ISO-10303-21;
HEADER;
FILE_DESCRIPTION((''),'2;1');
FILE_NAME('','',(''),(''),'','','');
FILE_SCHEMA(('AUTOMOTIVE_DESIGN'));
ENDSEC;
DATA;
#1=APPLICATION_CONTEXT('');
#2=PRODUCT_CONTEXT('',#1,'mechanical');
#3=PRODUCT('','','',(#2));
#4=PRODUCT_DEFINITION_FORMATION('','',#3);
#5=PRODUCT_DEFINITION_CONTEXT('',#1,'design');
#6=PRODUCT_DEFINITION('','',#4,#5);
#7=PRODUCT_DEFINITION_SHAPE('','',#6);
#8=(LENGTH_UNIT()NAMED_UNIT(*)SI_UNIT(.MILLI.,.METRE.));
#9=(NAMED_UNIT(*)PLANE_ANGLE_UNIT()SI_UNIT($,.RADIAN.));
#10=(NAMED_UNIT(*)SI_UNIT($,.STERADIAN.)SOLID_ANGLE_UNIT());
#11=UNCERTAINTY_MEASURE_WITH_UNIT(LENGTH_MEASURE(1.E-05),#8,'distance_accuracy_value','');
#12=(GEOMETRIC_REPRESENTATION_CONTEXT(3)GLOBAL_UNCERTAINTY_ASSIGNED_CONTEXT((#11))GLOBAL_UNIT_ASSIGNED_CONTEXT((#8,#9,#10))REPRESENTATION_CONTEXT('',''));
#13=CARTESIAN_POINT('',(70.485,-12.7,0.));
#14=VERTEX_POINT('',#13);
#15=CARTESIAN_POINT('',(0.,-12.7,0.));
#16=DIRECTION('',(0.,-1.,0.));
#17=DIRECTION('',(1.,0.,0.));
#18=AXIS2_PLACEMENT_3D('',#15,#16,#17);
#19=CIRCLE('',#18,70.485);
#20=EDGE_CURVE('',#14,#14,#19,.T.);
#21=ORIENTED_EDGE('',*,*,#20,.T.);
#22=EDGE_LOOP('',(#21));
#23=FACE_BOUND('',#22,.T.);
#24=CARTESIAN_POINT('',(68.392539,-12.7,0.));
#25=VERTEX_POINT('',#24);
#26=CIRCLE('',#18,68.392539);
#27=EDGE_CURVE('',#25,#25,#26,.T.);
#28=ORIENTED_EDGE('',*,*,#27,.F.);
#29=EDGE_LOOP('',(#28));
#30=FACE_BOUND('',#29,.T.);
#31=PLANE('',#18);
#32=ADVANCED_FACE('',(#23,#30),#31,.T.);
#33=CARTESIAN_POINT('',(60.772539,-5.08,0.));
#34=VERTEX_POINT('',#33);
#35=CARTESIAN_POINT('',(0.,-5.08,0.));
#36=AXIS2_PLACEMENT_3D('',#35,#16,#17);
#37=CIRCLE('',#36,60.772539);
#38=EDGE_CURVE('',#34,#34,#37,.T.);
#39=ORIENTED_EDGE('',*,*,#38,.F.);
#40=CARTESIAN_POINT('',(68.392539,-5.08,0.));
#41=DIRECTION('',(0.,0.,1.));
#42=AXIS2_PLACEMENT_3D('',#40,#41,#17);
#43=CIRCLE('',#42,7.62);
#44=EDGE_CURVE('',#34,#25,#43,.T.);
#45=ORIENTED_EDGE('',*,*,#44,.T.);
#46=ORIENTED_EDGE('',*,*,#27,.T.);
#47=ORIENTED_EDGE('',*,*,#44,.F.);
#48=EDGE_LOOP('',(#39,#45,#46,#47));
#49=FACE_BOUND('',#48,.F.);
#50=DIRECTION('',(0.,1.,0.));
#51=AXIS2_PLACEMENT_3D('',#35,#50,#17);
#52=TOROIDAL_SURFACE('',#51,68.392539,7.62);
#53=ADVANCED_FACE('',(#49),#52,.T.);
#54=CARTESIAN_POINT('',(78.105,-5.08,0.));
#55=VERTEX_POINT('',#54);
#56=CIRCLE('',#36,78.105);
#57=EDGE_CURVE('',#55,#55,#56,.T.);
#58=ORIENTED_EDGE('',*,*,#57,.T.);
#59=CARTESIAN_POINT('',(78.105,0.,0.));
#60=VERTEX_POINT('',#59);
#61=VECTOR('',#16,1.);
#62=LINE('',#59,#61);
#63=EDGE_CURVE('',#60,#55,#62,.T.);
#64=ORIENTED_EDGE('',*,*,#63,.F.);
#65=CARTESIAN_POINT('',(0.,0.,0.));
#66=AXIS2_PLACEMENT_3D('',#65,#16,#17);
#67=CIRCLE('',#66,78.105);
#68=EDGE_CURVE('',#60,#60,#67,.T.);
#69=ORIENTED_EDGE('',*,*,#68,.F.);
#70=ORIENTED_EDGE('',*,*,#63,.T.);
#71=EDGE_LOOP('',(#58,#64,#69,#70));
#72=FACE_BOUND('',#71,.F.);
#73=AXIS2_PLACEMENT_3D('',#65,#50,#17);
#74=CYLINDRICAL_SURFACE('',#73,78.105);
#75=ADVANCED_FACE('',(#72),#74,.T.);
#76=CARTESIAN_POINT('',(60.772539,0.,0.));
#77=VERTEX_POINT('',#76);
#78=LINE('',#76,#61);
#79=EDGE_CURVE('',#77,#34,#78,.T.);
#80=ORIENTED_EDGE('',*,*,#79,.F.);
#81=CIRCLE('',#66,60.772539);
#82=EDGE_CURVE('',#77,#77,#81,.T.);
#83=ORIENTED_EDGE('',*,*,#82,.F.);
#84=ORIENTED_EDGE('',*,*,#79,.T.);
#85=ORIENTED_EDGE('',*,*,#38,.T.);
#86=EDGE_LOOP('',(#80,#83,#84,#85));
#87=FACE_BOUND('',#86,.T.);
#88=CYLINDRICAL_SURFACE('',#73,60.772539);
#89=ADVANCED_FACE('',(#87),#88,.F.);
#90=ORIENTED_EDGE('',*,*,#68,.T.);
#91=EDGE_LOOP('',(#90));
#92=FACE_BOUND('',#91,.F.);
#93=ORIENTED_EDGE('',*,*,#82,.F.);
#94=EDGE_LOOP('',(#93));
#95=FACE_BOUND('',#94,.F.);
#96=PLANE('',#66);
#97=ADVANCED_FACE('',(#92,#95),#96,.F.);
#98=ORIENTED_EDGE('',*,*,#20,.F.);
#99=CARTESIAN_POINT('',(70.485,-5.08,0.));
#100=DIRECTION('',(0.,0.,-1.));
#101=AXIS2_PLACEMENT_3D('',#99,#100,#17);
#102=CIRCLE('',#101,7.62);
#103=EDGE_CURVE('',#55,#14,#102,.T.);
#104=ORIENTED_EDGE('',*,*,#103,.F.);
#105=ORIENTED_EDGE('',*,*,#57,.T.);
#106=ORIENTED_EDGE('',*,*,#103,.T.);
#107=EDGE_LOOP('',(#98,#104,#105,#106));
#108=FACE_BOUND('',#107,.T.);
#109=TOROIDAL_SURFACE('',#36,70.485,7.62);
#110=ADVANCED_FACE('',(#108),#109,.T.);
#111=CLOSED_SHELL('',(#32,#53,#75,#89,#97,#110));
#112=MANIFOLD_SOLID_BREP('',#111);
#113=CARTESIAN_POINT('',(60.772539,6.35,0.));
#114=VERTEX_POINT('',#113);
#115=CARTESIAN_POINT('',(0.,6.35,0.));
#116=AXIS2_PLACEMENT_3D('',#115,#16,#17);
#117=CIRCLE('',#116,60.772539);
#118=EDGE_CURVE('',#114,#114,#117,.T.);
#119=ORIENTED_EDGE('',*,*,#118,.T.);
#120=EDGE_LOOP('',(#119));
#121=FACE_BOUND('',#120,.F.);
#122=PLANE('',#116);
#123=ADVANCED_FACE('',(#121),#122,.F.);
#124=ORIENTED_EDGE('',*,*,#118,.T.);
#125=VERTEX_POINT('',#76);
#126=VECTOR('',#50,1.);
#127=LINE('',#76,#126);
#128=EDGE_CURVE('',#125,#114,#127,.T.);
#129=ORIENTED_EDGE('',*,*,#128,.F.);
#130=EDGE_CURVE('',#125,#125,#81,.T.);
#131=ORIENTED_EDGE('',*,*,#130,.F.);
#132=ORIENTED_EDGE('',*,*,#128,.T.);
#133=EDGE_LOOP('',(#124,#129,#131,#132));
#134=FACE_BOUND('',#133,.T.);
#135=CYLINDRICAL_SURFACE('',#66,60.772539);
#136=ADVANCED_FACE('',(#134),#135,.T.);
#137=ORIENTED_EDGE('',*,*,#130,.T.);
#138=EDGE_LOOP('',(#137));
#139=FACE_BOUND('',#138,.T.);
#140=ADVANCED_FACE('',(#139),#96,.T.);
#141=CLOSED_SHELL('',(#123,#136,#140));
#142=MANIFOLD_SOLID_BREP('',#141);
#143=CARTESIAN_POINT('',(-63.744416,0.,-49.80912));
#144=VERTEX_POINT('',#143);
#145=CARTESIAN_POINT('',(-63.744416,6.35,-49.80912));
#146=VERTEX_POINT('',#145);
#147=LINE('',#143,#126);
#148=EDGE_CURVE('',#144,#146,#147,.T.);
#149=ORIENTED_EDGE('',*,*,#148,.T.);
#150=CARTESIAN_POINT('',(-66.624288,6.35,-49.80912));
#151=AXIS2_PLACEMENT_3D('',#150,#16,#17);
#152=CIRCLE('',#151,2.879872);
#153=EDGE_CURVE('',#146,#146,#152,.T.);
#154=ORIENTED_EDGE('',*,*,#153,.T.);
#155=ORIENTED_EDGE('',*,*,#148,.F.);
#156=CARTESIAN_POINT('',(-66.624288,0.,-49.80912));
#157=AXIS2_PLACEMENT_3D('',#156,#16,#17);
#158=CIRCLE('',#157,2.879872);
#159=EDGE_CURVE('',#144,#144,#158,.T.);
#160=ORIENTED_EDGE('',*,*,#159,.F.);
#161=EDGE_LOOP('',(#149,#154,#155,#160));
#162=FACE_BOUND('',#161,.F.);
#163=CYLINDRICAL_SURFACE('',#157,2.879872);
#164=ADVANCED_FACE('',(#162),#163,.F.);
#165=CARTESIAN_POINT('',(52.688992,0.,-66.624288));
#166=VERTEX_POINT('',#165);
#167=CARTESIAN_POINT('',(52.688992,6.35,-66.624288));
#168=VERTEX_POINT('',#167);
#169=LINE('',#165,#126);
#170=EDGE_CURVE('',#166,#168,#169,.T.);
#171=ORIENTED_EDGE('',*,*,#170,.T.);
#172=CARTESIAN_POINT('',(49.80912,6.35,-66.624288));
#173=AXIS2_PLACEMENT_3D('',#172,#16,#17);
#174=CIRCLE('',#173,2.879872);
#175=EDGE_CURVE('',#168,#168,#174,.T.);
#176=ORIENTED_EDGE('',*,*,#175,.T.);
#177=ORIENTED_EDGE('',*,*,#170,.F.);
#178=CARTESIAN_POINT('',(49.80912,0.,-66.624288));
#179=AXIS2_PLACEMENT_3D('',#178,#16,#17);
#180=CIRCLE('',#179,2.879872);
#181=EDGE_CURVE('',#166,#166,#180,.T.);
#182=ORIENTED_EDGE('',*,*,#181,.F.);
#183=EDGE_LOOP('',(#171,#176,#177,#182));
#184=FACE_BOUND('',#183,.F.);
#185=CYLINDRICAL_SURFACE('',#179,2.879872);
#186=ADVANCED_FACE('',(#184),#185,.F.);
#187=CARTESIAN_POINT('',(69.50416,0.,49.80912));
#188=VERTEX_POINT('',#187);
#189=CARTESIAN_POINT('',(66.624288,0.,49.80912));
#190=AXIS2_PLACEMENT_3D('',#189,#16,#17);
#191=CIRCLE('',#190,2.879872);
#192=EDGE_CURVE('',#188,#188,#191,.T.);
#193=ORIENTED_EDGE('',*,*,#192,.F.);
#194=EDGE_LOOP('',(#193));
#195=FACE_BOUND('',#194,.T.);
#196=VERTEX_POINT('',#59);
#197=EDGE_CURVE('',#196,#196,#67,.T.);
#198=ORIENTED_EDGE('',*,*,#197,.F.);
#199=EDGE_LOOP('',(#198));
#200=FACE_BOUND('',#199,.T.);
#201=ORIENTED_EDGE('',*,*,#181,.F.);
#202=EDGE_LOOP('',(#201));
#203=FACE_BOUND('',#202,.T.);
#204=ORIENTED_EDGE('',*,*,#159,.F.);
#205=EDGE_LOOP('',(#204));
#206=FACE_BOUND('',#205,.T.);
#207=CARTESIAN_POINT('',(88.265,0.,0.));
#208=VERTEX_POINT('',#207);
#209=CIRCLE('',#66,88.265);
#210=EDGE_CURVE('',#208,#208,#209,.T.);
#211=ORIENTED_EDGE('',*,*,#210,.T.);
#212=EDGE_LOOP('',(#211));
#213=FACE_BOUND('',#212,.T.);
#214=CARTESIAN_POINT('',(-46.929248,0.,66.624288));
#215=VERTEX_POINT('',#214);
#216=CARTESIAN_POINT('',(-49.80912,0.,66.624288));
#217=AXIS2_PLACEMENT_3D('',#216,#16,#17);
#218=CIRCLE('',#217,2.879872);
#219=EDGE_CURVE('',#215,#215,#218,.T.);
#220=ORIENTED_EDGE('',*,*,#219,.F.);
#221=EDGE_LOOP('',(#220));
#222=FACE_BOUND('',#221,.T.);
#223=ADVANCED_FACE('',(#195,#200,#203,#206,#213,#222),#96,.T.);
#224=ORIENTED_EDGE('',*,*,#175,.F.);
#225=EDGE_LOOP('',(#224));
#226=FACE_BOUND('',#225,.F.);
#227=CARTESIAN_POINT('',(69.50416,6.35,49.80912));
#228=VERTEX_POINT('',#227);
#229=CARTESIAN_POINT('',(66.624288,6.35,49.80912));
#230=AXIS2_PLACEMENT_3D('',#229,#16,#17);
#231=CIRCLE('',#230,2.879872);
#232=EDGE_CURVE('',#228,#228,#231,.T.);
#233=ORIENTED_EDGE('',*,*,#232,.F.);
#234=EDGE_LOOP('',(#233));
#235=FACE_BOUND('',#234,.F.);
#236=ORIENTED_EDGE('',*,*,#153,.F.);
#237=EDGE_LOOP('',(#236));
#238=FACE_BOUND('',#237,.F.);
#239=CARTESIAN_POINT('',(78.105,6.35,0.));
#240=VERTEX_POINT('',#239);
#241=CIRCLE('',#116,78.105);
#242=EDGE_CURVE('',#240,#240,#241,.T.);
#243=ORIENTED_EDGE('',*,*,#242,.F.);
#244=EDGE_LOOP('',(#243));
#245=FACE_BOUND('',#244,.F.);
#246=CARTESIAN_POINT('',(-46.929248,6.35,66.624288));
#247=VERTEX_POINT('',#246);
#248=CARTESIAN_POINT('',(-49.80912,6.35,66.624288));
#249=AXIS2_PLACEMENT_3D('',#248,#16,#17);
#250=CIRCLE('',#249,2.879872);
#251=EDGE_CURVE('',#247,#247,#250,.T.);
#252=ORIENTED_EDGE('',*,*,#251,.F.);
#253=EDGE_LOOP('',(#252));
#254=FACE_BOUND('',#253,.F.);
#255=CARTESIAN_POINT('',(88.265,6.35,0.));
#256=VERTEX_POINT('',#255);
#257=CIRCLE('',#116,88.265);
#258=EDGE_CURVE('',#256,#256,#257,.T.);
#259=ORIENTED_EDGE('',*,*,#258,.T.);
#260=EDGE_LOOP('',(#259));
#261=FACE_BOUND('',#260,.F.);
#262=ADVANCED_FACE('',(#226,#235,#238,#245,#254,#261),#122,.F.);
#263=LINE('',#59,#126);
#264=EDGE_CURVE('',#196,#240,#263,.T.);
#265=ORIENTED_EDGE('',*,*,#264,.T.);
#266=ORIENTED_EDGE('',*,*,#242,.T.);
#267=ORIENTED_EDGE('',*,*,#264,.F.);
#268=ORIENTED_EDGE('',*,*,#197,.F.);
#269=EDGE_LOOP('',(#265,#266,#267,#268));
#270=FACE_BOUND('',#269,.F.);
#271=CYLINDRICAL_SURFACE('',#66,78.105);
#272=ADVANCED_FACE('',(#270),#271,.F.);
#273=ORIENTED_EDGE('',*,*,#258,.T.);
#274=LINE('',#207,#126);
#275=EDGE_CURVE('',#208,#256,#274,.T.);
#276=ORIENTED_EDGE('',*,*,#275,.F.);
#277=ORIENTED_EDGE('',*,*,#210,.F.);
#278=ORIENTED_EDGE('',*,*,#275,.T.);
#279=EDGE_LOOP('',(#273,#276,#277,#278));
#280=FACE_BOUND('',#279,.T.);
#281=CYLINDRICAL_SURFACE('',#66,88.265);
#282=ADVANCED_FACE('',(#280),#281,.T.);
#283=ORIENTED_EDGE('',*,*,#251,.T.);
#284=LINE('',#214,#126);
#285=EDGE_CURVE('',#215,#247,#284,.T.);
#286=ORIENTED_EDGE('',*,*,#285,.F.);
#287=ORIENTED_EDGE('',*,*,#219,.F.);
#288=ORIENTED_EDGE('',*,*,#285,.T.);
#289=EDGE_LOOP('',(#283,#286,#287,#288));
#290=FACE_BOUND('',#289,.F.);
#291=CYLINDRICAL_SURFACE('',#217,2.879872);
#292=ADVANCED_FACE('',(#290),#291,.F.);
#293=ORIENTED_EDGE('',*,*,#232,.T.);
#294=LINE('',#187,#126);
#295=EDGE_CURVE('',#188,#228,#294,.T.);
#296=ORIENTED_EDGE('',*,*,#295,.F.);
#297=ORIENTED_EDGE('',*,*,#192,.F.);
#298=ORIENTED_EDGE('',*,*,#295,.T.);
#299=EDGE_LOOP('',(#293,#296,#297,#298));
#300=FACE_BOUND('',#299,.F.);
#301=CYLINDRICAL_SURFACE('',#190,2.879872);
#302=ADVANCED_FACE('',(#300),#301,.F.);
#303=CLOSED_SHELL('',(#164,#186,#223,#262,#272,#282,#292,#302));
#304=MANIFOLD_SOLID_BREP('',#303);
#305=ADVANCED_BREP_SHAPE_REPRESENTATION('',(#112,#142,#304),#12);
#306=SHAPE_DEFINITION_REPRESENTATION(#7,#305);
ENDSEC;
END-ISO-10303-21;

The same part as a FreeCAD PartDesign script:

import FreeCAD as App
import Part
import Sketcher
from FreeCAD import Vector
Q = App.Units.Quantity


def edges_at(feature, points):
    """Names of the edges that pass closest to the given points."""
    edges = feature.Shape.Edges
    near = lambda p: min(range(len(edges)), key=lambda i: edges[i].distToShape(Part.Vertex(*p))[0])
    return sorted({f"Edge{near(p) + 1}" for p in points})

doc = App.newDocument("Part")
body = doc.addObject("PartDesign::Body", "Body")

sketch1 = doc.addObject("Sketcher::SketchObject", "Sketch")
body.addObject(sketch1)
sketch1.AttachmentSupport = (doc.XZ_Plane, [""])
sketch1.MapMode = "FlatFace"
sketch1.addGeometry(Part.Circle(Vector(0, 0, 0), Vector(0, 0, 1), 78.105), False)
sketch1.addGeometry(Part.Circle(Vector(0, 0, 0), Vector(0, 0, 1), 60.772539), False)
sketch1.addConstraint(Sketcher.Constraint("Coincident", 0, 3, -1, 1))
sketch1.addConstraint(Sketcher.Constraint("Coincident", 1, 3, -1, 1))
sketch1.addConstraint(Sketcher.Constraint("Diameter", 0, Q("6.15 in")))
sketch1.addConstraint(Sketcher.Constraint("Diameter", 1, Q("121.545078 mm")))
pad1 = doc.addObject("PartDesign::Pad", "Pad")
body.addObject(pad1)
pad1.Profile = sketch1
pad1.Length = Q("0.5 in")
doc.recompute()

fillet = doc.addObject("PartDesign::Fillet", "Fillet")
body.addObject(fillet)
fillet.Base = (pad1, edges_at(pad1, [(-78.105, -12.7, 0), (-60.773, -12.7, 0)]))
fillet.Radius = Q("0.3 in")
body2 = doc.addObject("PartDesign::Body", "Body001")

sketch2 = doc.addObject("Sketcher::SketchObject", "Sketch001")
body2.addObject(sketch2)
sketch2.AttachmentSupport = (doc.getObject("XZ_Plane001"), [""])
sketch2.MapMode = "FlatFace"
sketch2.addGeometry(Part.Circle(Vector(0, 0, 0), Vector(0, 0, 1), 88.265), False)
sketch2.addGeometry(Part.Circle(Vector(-66.624288, -49.80912, 0), Vector(0, 0, 1), 2.879872), False)
sketch2.addGeometry(Part.Circle(Vector(49.80912, -66.624288, 0), Vector(0, 0, 1), 2.879872), False)
sketch2.addGeometry(Part.Circle(Vector(-49.80912, 66.624288, 0), Vector(0, 0, 1), 2.879872), False)
sketch2.addGeometry(Part.Circle(Vector(0, 0, 0), Vector(0, 0, 1), 78.105), False)
sketch2.addGeometry(Part.Circle(Vector(66.624288, 49.80912, 0), Vector(0, 0, 1), 2.879872), False)
sketch2.addConstraint(Sketcher.Constraint("Coincident", 0, 3, -1, 1))
sketch2.addConstraint(Sketcher.Constraint("Coincident", 4, 3, -1, 1))
sketch2.addConstraint(Sketcher.Constraint("Equal", 1, 2))
sketch2.addConstraint(Sketcher.Constraint("Equal", 2, 3))
sketch2.addConstraint(Sketcher.Constraint("Equal", 3, 5))
sketch2.addConstraint(Sketcher.Constraint("Symmetric", 2, 3, 3, 3, -1, 1))
sketch2.addConstraint(Sketcher.Constraint("Symmetric", 1, 3, 5, 3, -1, 1))
sketch2.addConstraint(Sketcher.Constraint("Diameter", 0, Q("6.95 in")))
sketch2.addConstraint(Sketcher.Constraint("Diameter", 4, Q("6.15 in")))
sketch2.addConstraint(Sketcher.Constraint("Diameter", 1, Q("5.759744 mm")))
sketch2.addConstraint(Sketcher.Constraint("DistanceX", 1, 3, -1, 1, Q("66.624288 mm")))
sketch2.addConstraint(Sketcher.Constraint("DistanceY", 1, 3, -1, 1, Q("49.80912 mm")))
sketch2.addConstraint(Sketcher.Constraint("DistanceX", -1, 1, 2, 3, Q("49.80912 mm")))
sketch2.addConstraint(Sketcher.Constraint("DistanceY", 2, 3, -1, 1, Q("66.624288 mm")))
pad2 = doc.addObject("PartDesign::Pad", "Pad001")
body2.addObject(pad2)
pad2.Profile = sketch2
pad2.Length = Q("0.25 in")
pad2.Reversed = True
body3 = doc.addObject("PartDesign::Body", "Body002")

sketch3 = doc.addObject("Sketcher::SketchObject", "Sketch002")
body3.addObject(sketch3)
sketch3.AttachmentSupport = (doc.getObject("XZ_Plane002"), [""])
sketch3.MapMode = "FlatFace"
sketch3.addGeometry(Part.Circle(Vector(0, 0, 0), Vector(0, 0, 1), 60.772539), False)
sketch3.addConstraint(Sketcher.Constraint("Coincident", 0, 3, -1, 1))
sketch3.addConstraint(Sketcher.Constraint("Diameter", 0, Q("121.545078 mm")))
pad3 = doc.addObject("PartDesign::Pad", "Pad002")
body3.addObject(pad3)
pad3.Profile = sketch3
pad3.Length = Q("0.25 in")
pad3.Reversed = True

doc.recompute()
